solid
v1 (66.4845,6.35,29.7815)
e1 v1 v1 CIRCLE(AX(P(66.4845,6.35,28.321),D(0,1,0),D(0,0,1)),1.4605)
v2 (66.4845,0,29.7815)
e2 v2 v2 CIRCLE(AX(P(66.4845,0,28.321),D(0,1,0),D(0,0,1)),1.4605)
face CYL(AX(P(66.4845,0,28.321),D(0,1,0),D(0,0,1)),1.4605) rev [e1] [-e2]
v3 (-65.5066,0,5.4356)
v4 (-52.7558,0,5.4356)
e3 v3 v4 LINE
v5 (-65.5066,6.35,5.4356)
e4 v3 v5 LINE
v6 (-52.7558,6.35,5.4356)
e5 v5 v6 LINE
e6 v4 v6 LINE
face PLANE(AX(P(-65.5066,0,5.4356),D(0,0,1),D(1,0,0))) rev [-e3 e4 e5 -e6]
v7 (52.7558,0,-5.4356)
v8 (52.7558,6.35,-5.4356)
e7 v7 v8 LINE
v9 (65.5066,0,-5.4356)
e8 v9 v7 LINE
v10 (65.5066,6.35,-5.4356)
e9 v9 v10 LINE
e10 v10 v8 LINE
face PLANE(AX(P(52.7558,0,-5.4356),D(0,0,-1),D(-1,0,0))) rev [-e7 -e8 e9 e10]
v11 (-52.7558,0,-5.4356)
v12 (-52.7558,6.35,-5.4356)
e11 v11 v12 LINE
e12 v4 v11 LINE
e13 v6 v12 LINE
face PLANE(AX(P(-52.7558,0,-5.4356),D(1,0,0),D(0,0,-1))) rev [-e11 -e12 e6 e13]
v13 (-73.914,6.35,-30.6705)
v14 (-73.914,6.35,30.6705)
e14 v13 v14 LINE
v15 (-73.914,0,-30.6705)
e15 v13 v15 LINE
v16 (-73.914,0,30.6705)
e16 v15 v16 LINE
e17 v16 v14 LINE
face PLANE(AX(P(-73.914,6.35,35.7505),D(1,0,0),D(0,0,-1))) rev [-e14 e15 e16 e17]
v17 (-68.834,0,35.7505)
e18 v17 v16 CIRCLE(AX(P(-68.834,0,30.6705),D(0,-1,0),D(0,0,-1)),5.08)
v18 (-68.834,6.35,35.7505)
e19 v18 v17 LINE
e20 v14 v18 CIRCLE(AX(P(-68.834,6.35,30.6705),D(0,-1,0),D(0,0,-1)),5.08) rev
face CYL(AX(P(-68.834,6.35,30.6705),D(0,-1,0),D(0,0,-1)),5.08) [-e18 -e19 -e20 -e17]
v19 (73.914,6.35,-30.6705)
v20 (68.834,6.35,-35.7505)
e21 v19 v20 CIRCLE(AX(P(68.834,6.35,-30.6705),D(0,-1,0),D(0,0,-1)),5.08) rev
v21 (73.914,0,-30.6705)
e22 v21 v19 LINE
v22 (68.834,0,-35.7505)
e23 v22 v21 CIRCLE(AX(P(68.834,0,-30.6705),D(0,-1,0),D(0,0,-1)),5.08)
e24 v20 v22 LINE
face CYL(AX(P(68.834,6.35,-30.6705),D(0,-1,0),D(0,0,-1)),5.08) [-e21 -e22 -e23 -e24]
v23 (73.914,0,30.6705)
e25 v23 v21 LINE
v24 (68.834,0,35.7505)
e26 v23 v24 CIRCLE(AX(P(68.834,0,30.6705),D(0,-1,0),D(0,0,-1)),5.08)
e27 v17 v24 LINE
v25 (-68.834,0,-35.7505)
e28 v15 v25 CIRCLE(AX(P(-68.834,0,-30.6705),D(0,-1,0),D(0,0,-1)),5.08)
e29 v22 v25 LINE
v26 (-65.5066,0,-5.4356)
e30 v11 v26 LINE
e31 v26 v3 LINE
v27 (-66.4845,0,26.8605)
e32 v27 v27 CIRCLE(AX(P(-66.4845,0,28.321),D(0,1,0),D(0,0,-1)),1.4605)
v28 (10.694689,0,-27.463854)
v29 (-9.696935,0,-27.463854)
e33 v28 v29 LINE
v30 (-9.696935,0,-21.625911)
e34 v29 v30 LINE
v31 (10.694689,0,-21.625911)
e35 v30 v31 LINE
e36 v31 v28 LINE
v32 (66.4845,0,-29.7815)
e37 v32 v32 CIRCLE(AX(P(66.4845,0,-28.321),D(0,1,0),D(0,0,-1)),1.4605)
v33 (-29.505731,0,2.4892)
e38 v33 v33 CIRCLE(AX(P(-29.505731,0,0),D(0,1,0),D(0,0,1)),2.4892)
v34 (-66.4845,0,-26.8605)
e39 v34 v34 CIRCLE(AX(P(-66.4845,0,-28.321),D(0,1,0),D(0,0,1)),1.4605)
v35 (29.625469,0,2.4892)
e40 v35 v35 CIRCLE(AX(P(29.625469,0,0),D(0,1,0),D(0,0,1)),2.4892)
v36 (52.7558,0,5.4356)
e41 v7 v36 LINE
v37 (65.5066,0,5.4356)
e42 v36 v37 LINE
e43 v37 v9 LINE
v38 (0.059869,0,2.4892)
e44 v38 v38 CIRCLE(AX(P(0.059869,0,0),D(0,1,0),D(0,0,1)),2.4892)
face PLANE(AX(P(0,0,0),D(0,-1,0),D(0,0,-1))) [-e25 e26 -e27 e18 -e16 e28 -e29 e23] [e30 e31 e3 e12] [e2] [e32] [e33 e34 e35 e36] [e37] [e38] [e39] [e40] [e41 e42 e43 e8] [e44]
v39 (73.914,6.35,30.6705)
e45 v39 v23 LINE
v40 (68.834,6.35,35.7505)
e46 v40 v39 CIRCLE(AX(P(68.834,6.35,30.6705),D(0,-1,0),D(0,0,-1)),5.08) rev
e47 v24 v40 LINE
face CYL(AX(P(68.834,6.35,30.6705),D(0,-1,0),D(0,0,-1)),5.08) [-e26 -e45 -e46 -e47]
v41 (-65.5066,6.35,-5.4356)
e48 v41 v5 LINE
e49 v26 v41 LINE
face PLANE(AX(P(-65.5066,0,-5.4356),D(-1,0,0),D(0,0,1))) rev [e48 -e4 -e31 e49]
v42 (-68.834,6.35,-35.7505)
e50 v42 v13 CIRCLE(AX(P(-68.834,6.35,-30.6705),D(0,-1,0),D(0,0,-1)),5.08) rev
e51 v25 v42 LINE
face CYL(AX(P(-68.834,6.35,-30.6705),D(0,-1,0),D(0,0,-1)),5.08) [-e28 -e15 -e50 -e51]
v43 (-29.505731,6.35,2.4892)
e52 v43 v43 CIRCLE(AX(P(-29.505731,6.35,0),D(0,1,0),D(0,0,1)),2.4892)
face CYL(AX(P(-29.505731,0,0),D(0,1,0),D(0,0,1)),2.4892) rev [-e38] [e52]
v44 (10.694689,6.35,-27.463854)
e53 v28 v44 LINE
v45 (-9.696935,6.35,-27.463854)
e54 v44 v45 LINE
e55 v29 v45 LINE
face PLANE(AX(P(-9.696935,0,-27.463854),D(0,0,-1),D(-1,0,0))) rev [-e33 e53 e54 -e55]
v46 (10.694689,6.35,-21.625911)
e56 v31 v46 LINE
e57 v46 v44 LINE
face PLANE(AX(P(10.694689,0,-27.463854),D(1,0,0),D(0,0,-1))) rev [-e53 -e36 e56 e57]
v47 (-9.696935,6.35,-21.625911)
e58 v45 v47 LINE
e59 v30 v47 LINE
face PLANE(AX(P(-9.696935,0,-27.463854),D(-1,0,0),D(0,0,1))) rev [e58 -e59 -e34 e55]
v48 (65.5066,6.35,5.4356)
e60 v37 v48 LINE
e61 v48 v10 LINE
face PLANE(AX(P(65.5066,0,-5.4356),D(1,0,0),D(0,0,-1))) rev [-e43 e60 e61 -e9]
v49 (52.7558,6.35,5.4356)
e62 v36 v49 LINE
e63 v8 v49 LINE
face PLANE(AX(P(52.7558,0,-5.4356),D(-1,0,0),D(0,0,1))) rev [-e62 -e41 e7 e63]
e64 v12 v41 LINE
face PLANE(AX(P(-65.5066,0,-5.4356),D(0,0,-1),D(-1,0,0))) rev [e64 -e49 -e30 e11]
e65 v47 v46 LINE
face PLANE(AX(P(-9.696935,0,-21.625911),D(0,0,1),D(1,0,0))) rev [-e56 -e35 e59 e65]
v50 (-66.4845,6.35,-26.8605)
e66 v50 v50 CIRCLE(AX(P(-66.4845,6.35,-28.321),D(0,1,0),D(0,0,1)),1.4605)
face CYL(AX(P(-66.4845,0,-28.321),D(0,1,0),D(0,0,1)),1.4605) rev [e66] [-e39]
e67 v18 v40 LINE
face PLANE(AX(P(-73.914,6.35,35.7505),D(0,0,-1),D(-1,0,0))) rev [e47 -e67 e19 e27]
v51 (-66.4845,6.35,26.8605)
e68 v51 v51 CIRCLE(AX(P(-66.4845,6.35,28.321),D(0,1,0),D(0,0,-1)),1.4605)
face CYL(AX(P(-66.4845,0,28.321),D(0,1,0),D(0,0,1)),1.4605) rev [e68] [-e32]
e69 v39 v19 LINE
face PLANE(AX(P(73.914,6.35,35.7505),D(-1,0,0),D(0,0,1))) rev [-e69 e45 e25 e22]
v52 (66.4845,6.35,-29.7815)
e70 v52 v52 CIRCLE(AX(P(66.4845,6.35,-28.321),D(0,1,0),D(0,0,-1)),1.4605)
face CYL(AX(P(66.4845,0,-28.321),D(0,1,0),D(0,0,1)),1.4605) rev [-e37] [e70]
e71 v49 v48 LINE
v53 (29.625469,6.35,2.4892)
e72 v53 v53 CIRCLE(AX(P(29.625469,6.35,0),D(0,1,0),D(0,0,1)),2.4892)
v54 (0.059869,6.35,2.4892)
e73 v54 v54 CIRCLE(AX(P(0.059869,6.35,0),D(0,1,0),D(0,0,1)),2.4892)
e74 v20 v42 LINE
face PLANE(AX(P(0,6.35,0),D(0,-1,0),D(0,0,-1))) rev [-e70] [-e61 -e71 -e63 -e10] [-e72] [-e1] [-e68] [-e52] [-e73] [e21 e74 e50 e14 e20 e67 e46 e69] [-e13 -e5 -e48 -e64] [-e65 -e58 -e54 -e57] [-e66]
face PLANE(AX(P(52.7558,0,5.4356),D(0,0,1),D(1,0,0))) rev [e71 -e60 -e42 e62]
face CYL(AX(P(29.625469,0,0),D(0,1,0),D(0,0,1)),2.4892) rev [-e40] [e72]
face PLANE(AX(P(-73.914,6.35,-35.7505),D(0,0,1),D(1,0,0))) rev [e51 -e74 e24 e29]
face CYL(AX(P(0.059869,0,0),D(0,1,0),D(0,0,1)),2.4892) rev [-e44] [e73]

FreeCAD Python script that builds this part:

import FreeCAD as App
import Part
import Sketcher
Q = App.Units.Quantity


def edges_at(feature, points):
    """Names of the edges that pass closest to the given points."""
    edges = feature.Shape.Edges
    near = lambda p: min(range(len(edges)), key=lambda i: edges[i].distToShape(Part.Vertex(*p))[0])
    return sorted({f"Edge{near(p) + 1}" for p in points})

doc = App.newDocument("Part")
params = doc.addObject("Spreadsheet::Sheet", "Params")
for row, (alias, value) in enumerate([
    ("sketch1_width", "5.82 in"),
    ("sketch1_height", "2.815 in"),
    ("pad1_length", "0.25 in"),
    ("fillet_radius", "0.2 in"),
    ("sketch2_diameter", "0.196 in"),
    ("sketch2_width", "0.502 in"),
    ("sketch2_height", "0.428 in"),
    ("sketch3_diameter", "0.115 in"),
], start=1):
    params.set(f"A{row}", alias)
    params.set(f"B{row}", "=" + value)
    params.setAlias(f"B{row}", alias)

body = doc.addObject("PartDesign::Body", "Body")

# Sketch on XZ plane
sketch1 = body.newObject("Sketcher::SketchObject", "Sketch")
sketch1.AttachmentSupport = (doc.getObject("XZ_Plane"), [""])
sketch1.MapMode = "FlatFace"
sketch1.addGeometry([
    Part.LineSegment(App.Vector(-74, -36, 0), App.Vector(-74, 36, 0)),
    Part.LineSegment(App.Vector(-74, 36, 0), App.Vector(74, 36, 0)),
    Part.LineSegment(App.Vector(74, 36, 0), App.Vector(74, -36, 0)),
    Part.LineSegment(App.Vector(74, -36, 0), App.Vector(-74, -36, 0)),
], False)
sketch1.addConstraint([
    Sketcher.Constraint("Coincident", 0, 2, 1, 1),
    Sketcher.Constraint("Coincident", 1, 2, 2, 1),
    Sketcher.Constraint("Coincident", 2, 2, 3, 1),
    Sketcher.Constraint("Coincident", 3, 2, 0, 1),
    Sketcher.Constraint("Vertical", 0),
    Sketcher.Constraint("Horizontal", 1),
    Sketcher.Constraint("Vertical", 2),
    Sketcher.Constraint("Horizontal", 3),
    Sketcher.Constraint("Symmetric", 0, 2, 2, 2, -1, 1),
    Sketcher.Constraint("DistanceX", 1, 1, 1, 2, Q("5.82 in")),
    Sketcher.Constraint("DistanceY", 0, 1, 0, 2, Q("2.815 in")),
])
sketch1.setExpression("Constraints[9]", "Params.sketch1_width")
sketch1.setExpression("Constraints[10]", "Params.sketch1_height")
pad1 = body.newObject("PartDesign::Pad", "Pad")
pad1.Profile = sketch1
pad1.setExpression("Length", "Params.pad1_length")
pad1.Reversed = True
doc.recompute()

fillet = body.newObject("PartDesign::Fillet", "Fillet")
fillet.Base = (pad1, edges_at(pad1, [
    (73.914, 3.175, 35.751),
    (-73.914, 3.175, 35.751),
    (-73.914, 3.175, -35.751),
    (73.914, 3.175, -35.751),
]))
fillet.setExpression("Radius", "Params.fillet_radius")

# Sketch on XZ plane
sketch2 = body.newObject("Sketcher::SketchObject", "Sketch001")
sketch2.AttachmentSupport = (doc.getObject("XZ_Plane"), [""])
sketch2.MapMode = "FlatFace"
sketch2.AttachmentOffset = App.Placement(App.Vector(0, 0, -0.25 * 25.4), App.Rotation())
sketch2.addGeometry([
    Part.Circle(App.Vector(-29.5, 0, 0), App.Vector(0, 0, 1), 2.5),  # 0
    Part.Circle(App.Vector(29.6, 0, 0), App.Vector(0, 0, 1), 2.5),  # 1
    Part.Circle(App.Vector(0.1, 0, 0), App.Vector(0, 0, 1), 2.5),  # 2
    Part.LineSegment(App.Vector(52.8, -5.4, 0), App.Vector(52.8, 5.4, 0)),  # 3
    Part.LineSegment(App.Vector(52.8, 5.4, 0), App.Vector(65.5, 5.4, 0)),  # 4
    Part.LineSegment(App.Vector(65.5, 5.4, 0), App.Vector(65.5, -5.4, 0)),  # 5
    Part.LineSegment(App.Vector(65.5, -5.4, 0), App.Vector(52.8, -5.4, 0)),  # 6
    Part.LineSegment(App.Vector(-65.5, -5.4, 0), App.Vector(-65.5, 5.4, 0)),  # 7
    Part.LineSegment(App.Vector(-65.5, 5.4, 0), App.Vector(-52.8, 5.4, 0)),  # 8
    Part.LineSegment(App.Vector(-52.8, 5.4, 0), App.Vector(-52.8, -5.4, 0)),  # 9
    Part.LineSegment(App.Vector(-52.8, -5.4, 0), App.Vector(-65.5, -5.4, 0)),  # 10
], False)
sketch2.addConstraint([
    Sketcher.Constraint("Coincident", 3, 2, 4, 1),
    Sketcher.Constraint("Coincident", 4, 2, 5, 1),
    Sketcher.Constraint("Coincident", 5, 2, 6, 1),
    Sketcher.Constraint("Coincident", 6, 2, 3, 1),
    Sketcher.Constraint("Coincident", 7, 2, 8, 1),
    Sketcher.Constraint("Coincident", 8, 2, 9, 1),
    Sketcher.Constraint("Coincident", 9, 2, 10, 1),
    Sketcher.Constraint("Coincident", 10, 2, 7, 1),
    Sketcher.Constraint("Vertical", 3),
    Sketcher.Constraint("Horizontal", 4),
    Sketcher.Constraint("Vertical", 5),
    Sketcher.Constraint("Horizontal", 6),
    Sketcher.Constraint("Vertical", 7),
    Sketcher.Constraint("Horizontal", 8),
    Sketcher.Constraint("Vertical", 9),
    Sketcher.Constraint("Horizontal", 10),
    Sketcher.Constraint("Equal", 0, 1),
    Sketcher.Constraint("Equal", 1, 2),
    Sketcher.Constraint("Symmetric", 5, 2, 7, 2, -1, 1),
    Sketcher.Constraint("Symmetric", 3, 2, 9, 2, -1, 1),
    Sketcher.Constraint("PointOnObject", 0, 3, -1),
    Sketcher.Constraint("PointOnObject", 1, 3, -1),
    Sketcher.Constraint("PointOnObject", 2, 3, -1),
    Sketcher.Constraint("Horizontal", 4, 2, 7, 2),
    Sketcher.Constraint("Diameter", 0, Q("0.196 in")),
    Sketcher.Constraint("DistanceX", 4, 1, 4, 2, Q("0.502 in")),
    Sketcher.Constraint("DistanceY", 3, 1, 3, 2, Q("0.428 in")),
    Sketcher.Constraint("DistanceX", -1, 1, 3, 2, Q("2.077 in")),
    Sketcher.Constraint("DistanceX", 0, 3, 1, 3, Q("2.328 in")),
    Sketcher.Constraint("DistanceX", 0, 3, 2, 3, Q("1.164 in")),
    Sketcher.Constraint("DistanceX", 0, 3, -1, 1, Q("29.505731 mm")),
])
sketch2.setExpression("Constraints[24]", "Params.sketch2_diameter")
sketch2.setExpression("Constraints[25]", "Params.sketch2_width")
sketch2.setExpression("Constraints[26]", "Params.sketch2_height")
pocket1 = body.newObject("PartDesign::Pocket", "Pocket")
pocket1.Profile = sketch2
pocket1.Type = "ThroughAll"
pocket1.Reversed = True

# Sketch on XZ plane
sketch3 = body.newObject("Sketcher::SketchObject", "Sketch002")
sketch3.AttachmentSupport = (doc.getObject("XZ_Plane"), [""])
sketch3.MapMode = "FlatFace"
sketch3.AttachmentOffset = App.Placement(App.Vector(0, 0, -0.25 * 25.4), App.Rotation())
sketch3.addGeometry([
    Part.Circle(App.Vector(-66.5, -28.3, 0), App.Vector(0, 0, 1), 1.5),
    Part.Circle(App.Vector(66.5, -28.3, 0), App.Vector(0, 0, 1), 1.5),
    Part.Circle(App.Vector(66.5, 28.3, 0), App.Vector(0, 0, 1), 1.5),
    Part.Circle(App.Vector(-66.5, 28.3, 0), App.Vector(0, 0, 1), 1.5),
], False)
sketch3.addConstraint([
    Sketcher.Constraint("Equal", 0, 1),
    Sketcher.Constraint("Equal", 1, 2),
    Sketcher.Constraint("Equal", 2, 3),
    Sketcher.Constraint("Symmetric", 0, 3, 2, 3, -1, 1),
    Sketcher.Constraint("Symmetric", 1, 3, 3, 3, -1, 1),
    Sketcher.Constraint("Symmetric", 0, 3, 1, 3, -2),
    Sketcher.Constraint("Diameter", 0, Q("0.115 in")),
    Sketcher.Constraint("DistanceY", 1, 3, 2, 3, Q("2.23 in")),
    Sketcher.Constraint("DistanceX", 0, 3, 1, 3, Q("5.235 in")),
])
sketch3.setExpression("Constraints[6]", "Params.sketch3_diameter")
pocket2 = body.newObject("PartDesign::Pocket", "Pocket001")
pocket2.Profile = sketch3
pocket2.Type = "ThroughAll"
pocket2.Reversed = True

# Sketch on XZ plane
sketch4 = body.newObject("Sketcher::SketchObject", "Sketch003")
sketch4.AttachmentSupport = (doc.getObject("XZ_Plane"), [""])
sketch4.MapMode = "FlatFace"
sketch4.AttachmentOffset = App.Placement(App.Vector(0, 0, -0.25 * 25.4), App.Rotation())
sketch4.addGeometry([
    Part.LineSegment(App.Vector(-10, -27, 0), App.Vector(-10, -22, 0)),
    Part.LineSegment(App.Vector(-10, -22, 0), App.Vector(11, -22, 0)),
    Part.LineSegment(App.Vector(11, -22, 0), App.Vector(11, -27, 0)),
    Part.LineSegment(App.Vector(11, -27, 0), App.Vector(-10, -27, 0)),
], False)
sketch4.addConstraint([
    Sketcher.Constraint("Coincident", 0, 2, 1, 1),
    Sketcher.Constraint("Coincident", 1, 2, 2, 1),
    Sketcher.Constraint("Coincident", 2, 2, 3, 1),
    Sketcher.Constraint("Coincident", 3, 2, 0, 1),
    Sketcher.Constraint("Vertical", 0),
    Sketcher.Constraint("Horizontal", 1),
    Sketcher.Constraint("Vertical", 2),
    Sketcher.Constraint("Horizontal", 3),
    Sketcher.Constraint("DistanceX", 1, 1, 1, 2, Q("20.391624 mm")),
    Sketcher.Constraint("DistanceY", 0, 1, 0, 2, Q("5.837943 mm")),
    Sketcher.Constraint("DistanceY", 0, 2, -1, 1, Q("21.625911 mm")),
    Sketcher.Constraint("DistanceX", -1, 1, 1, 2, Q("10.694689 mm")),
])
pocket3 = body.newObject("PartDesign::Pocket", "Pocket002")
pocket3.Profile = sketch4
pocket3.Type = "ThroughAll"
pocket3.Reversed = True

doc.recompute()
